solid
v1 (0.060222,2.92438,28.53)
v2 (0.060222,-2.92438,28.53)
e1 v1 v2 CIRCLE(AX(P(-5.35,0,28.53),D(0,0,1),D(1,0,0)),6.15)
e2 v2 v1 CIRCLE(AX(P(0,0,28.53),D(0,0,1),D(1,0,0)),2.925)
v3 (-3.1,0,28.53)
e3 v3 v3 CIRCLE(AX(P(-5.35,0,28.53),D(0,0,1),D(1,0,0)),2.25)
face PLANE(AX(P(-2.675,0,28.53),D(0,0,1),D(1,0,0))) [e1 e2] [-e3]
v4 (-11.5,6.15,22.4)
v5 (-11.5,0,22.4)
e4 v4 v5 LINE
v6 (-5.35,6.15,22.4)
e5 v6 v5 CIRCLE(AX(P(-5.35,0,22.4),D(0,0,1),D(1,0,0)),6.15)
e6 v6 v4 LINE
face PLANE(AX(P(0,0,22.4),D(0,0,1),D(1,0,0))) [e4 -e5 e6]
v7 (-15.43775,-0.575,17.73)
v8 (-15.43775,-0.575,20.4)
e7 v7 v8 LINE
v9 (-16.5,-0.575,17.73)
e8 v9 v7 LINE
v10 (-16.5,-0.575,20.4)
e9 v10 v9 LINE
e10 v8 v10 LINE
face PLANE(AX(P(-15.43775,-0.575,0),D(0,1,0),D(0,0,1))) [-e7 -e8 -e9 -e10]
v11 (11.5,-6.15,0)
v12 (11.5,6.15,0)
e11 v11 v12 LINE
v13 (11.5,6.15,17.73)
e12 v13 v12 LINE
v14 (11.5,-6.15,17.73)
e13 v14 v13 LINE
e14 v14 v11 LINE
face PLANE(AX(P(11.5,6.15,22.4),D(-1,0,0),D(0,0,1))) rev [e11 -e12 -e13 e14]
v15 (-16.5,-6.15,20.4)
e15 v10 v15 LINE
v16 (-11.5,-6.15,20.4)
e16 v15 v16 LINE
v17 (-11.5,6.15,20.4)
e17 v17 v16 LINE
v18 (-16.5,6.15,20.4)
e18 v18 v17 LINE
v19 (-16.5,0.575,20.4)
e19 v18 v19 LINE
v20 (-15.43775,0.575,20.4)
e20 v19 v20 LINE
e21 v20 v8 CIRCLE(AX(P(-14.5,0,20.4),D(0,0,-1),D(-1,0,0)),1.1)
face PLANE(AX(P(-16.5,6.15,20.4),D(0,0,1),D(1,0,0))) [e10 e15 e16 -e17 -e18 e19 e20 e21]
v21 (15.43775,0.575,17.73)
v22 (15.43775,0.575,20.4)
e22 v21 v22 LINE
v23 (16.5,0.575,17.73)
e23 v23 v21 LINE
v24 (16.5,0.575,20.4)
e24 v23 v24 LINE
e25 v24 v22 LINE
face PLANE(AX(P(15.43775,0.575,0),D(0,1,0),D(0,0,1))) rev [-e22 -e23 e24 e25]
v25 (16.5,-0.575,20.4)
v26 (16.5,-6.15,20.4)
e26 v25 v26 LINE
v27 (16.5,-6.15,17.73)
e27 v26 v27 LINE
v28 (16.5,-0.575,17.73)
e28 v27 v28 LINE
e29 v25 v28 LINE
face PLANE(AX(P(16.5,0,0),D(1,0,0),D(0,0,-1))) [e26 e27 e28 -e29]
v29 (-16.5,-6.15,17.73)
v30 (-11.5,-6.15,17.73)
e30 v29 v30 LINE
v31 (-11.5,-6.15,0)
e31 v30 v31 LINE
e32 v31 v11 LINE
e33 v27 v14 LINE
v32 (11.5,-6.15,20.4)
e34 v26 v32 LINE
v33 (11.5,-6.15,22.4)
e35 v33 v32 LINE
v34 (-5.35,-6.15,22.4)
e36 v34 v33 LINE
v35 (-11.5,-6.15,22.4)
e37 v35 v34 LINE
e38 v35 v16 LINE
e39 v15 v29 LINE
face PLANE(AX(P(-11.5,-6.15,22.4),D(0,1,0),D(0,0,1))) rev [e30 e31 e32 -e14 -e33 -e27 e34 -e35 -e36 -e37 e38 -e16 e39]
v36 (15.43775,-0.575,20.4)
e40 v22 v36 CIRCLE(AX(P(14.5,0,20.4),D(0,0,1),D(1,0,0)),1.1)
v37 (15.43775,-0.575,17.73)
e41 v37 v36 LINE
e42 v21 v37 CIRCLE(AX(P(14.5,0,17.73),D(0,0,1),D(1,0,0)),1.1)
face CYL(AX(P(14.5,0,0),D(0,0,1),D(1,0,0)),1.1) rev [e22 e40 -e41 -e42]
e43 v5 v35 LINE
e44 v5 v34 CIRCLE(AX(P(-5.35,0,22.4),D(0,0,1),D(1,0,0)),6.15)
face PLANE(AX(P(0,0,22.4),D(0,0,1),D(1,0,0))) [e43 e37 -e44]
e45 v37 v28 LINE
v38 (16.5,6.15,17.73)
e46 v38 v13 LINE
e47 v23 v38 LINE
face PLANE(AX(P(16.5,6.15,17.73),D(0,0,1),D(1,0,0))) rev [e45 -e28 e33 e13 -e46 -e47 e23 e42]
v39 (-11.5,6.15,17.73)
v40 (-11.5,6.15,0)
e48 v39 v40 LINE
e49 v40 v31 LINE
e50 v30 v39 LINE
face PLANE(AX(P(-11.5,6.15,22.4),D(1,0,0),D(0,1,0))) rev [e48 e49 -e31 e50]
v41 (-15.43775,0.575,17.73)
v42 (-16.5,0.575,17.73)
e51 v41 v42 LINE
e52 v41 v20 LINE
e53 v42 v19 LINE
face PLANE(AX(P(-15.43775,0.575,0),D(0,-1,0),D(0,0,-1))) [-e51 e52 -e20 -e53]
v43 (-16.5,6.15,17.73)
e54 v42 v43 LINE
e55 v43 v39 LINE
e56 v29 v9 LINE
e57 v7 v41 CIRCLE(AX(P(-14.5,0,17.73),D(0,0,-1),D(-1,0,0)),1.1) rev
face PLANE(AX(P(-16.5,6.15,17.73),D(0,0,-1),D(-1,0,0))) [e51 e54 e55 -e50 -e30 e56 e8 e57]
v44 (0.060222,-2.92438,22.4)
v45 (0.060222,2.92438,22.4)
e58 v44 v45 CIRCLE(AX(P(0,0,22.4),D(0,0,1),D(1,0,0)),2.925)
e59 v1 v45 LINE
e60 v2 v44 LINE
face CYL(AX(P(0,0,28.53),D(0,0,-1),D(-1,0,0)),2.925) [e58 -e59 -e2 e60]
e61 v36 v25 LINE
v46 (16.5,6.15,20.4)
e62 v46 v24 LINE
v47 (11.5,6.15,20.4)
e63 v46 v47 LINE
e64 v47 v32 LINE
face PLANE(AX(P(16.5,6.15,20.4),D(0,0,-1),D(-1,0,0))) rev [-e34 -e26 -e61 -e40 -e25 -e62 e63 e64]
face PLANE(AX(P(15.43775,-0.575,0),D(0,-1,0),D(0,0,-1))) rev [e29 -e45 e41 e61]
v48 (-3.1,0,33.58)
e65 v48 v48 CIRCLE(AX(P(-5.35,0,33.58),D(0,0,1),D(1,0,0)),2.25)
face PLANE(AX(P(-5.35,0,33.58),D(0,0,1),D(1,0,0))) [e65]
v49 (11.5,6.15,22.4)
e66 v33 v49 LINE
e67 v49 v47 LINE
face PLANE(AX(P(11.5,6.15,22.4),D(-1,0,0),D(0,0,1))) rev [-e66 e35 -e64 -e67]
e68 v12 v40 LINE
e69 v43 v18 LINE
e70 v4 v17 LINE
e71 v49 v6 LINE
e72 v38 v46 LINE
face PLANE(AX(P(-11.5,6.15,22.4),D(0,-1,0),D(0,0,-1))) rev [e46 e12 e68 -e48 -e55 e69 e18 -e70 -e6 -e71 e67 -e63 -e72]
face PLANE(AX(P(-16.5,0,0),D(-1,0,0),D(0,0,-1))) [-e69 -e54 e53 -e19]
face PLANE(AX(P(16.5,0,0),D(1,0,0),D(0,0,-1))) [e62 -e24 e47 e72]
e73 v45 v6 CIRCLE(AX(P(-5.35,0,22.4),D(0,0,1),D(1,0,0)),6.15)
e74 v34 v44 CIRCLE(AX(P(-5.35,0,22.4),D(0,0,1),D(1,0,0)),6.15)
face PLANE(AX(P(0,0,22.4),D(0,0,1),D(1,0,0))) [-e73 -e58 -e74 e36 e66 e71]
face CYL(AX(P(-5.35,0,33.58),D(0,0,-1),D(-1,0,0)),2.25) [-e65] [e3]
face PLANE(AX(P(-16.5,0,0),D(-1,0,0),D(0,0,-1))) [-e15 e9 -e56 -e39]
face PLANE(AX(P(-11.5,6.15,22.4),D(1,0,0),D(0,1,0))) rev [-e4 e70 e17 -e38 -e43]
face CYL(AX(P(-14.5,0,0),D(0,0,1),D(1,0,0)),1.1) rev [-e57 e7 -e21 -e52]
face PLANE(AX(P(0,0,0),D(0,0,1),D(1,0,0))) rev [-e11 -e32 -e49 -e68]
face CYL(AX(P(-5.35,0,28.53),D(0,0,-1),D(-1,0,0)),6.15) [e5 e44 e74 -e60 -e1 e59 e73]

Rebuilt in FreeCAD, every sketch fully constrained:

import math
import FreeCAD as App
import Part
import Sketcher
from FreeCAD import Vector
Q = App.Units.Quantity

doc = App.newDocument("Part")
params = doc.addObject("Spreadsheet::Sheet", "Params")
for row, (alias, value) in enumerate([
    ("sketch1_width", "23 mm"),
    ("sketch1_height", "12.3 mm"),
    ("pad1_length", "22.4 mm"),
    ("sketch2_width", "12.3 mm"),
    ("sketch2_height", "2.67 mm"),
    ("pad2_length", "5 mm"),
    ("sketch3_radius", "1.1 mm"),
    ("sketch3_height", "1.15 mm"),
    ("sketch4_radius", "6.15 mm"),
    ("pad3_length", "6.13 mm"),
    ("sketch5_diameter", "4.5 mm"),
    ("pad4_length", "5.05 mm"),
], start=1):
    params.set(f"A{row}", alias)
    params.set(f"B{row}", "=" + value)
    params.setAlias(f"B{row}", alias)

body = doc.addObject("PartDesign::Body", "Body")

sketch1 = doc.addObject("Sketcher::SketchObject", "Sketch")
body.addObject(sketch1)
sketch1.AttachmentSupport = (doc.XY_Plane, [""])
sketch1.MapMode = "FlatFace"
sketch1.addGeometry([
    Part.LineSegment(Vector(-12, 6, 0), Vector(-12, -6, 0)),
    Part.LineSegment(Vector(-12, -6, 0), Vector(12, -6, 0)),
    Part.LineSegment(Vector(12, -6, 0), Vector(12, 6, 0)),
    Part.LineSegment(Vector(12, 6, 0), Vector(-12, 6, 0)),
], False)
sketch1.addConstraint([
    Sketcher.Constraint("Coincident", 0, 2, 1, 1),
    Sketcher.Constraint("Coincident", 1, 2, 2, 1),
    Sketcher.Constraint("Coincident", 2, 2, 3, 1),
    Sketcher.Constraint("Coincident", 3, 2, 0, 1),
    Sketcher.Constraint("Vertical", 0),
    Sketcher.Constraint("Horizontal", 1),
    Sketcher.Constraint("Vertical", 2),
    Sketcher.Constraint("Horizontal", 3),
    Sketcher.Constraint("Symmetric", 0, 2, 2, 2, -1, 1),
    Sketcher.Constraint("DistanceX", 1, 1, 1, 2, Q("23 mm")),
    Sketcher.Constraint("DistanceY", 0, 2, 0, 1, Q("12.3 mm")),
])
sketch1.setExpression("Constraints[9]", "Params.sketch1_width")
sketch1.setExpression("Constraints[10]", "Params.sketch1_height")
pad1 = doc.addObject("PartDesign::Pad", "Pad")
body.addObject(pad1)
pad1.Profile = sketch1
pad1.setExpression("Length", "Params.pad1_length")

sketch2 = doc.addObject("Sketcher::SketchObject", "Sketch001")
body.addObject(sketch2)
sketch2.AttachmentSupport = (doc.YZ_Plane, [""])
sketch2.MapMode = "FlatFace"
sketch2.AttachmentOffset = App.Placement(Vector(0, 0, 11.5), App.Rotation())
sketch2.addGeometry([
    Part.LineSegment(Vector(6.2, 20.4, 0), Vector(-6.2, 20.4, 0)),
    Part.LineSegment(Vector(-6.2, 20.4, 0), Vector(-6.2, 17.7, 0)),
    Part.LineSegment(Vector(-6.2, 17.7, 0), Vector(6.2, 17.7, 0)),
    Part.LineSegment(Vector(6.2, 17.7, 0), Vector(6.2, 20.4, 0)),
], False)
sketch2.addConstraint([
    Sketcher.Constraint("Coincident", 0, 2, 1, 1),
    Sketcher.Constraint("Coincident", 1, 2, 2, 1),
    Sketcher.Constraint("Coincident", 2, 2, 3, 1),
    Sketcher.Constraint("Coincident", 3, 2, 0, 1),
    Sketcher.Constraint("Horizontal", 0),
    Sketcher.Constraint("Vertical", 1),
    Sketcher.Constraint("Horizontal", 2),
    Sketcher.Constraint("Vertical", 3),
    Sketcher.Constraint("DistanceX", 0, 2, 0, 1, Q("12.3 mm")),
    Sketcher.Constraint("DistanceY", 1, 2, 1, 1, Q("2.67 mm")),
    Sketcher.Constraint("DistanceY", -1, 1, 0, 2, Q("20.4 mm")),
    Sketcher.Constraint("DistanceX", 0, 2, -1, 1, Q("6.15 mm")),
])
sketch2.setExpression("Constraints[8]", "Params.sketch2_width")
sketch2.setExpression("Constraints[9]", "Params.sketch2_height")
pad2 = doc.addObject("PartDesign::Pad", "Pad001")
body.addObject(pad2)
pad2.Profile = sketch2
pad2.setExpression("Length", "Params.pad2_length")

sketch3 = doc.addObject("Sketcher::SketchObject", "Sketch002")
body.addObject(sketch3)
sketch3.AttachmentSupport = (doc.XY_Plane, [""])
sketch3.MapMode = "FlatFace"
sketch3.AttachmentOffset = App.Placement(Vector(0, 0, 20.4), App.Rotation())
sketch3.addGeometry([
    Part.LineSegment(Vector(16.5, 0.6, 0), Vector(15.4, 0.6, 0)),
    Part.ArcOfCircle(Part.Circle(Vector(14.5, 0, 0), Vector(0, 0, 1), 1.1), math.radians(32), math.radians(328)),
    Part.LineSegment(Vector(15.4, -0.6, 0), Vector(16.5, -0.6, 0)),
    Part.LineSegment(Vector(16.5, -0.6, 0), Vector(16.5, 0.6, 0)),
], False)
sketch3.addConstraint([
    Sketcher.Constraint("Coincident", 0, 2, 1, 1),
    Sketcher.Constraint("Coincident", 1, 2, 2, 1),
    Sketcher.Constraint("Coincident", 2, 2, 3, 1),
    Sketcher.Constraint("Coincident", 3, 2, 0, 1),
    Sketcher.Constraint("Horizontal", 0),
    Sketcher.Constraint("Horizontal", 2),
    Sketcher.Constraint("Vertical", 3),
    Sketcher.Constraint("Symmetric", 0, 2, 1, 2, -1),
    Sketcher.Constraint("Radius", 1, Q("1.1 mm")),
    Sketcher.Constraint("DistanceX", 1, 3, 2, 2, Q("2 mm")),
    Sketcher.Constraint("DistanceY", 3, 1, 3, 2, Q("1.15 mm")),
    Sketcher.Constraint("DistanceX", -1, 1, 1, 3, Q("14.5 mm")),
])
sketch3.setExpression("Constraints[8]", "Params.sketch3_radius")
sketch3.setExpression("Constraints[10]", "Params.sketch3_height")
pocket1 = doc.addObject("PartDesign::Pocket", "Pocket")
body.addObject(pocket1)
pocket1.Profile = sketch3
pocket1.Type = "ThroughAll"
doc.recompute()

mirrored = doc.addObject("PartDesign::Mirrored", "Mirrored")
body.addObject(mirrored)
mirrored.Originals = [pad2, pocket1]
mirrored.MirrorPlane = (doc.YZ_Plane, [""])
body.Tip = mirrored

sketch4 = doc.addObject("Sketcher::SketchObject", "Sketch003")
body.addObject(sketch4)
sketch4.AttachmentSupport = (doc.XY_Plane, [""])
sketch4.MapMode = "FlatFace"
sketch4.AttachmentOffset = App.Placement(Vector(0, 0, 22.4), App.Rotation())
sketch4.addGeometry([
    Part.ArcOfCircle(Part.Circle(Vector(-5.3, 0, 0), Vector(0, 0, 1), 6.2), math.radians(28), math.radians(332)),
    Part.ArcOfCircle(Part.Circle(Vector(0, 0, 0), Vector(0, 0, 1), 2.9), math.radians(-89), math.radians(89)),
], False)
sketch4.addConstraint([
    Sketcher.Constraint("Coincident", 0, 1, 1, 2),
    Sketcher.Constraint("Coincident", 1, 1, 0, 2),
    Sketcher.Constraint("Coincident", 1, 3, -1, 1),
    Sketcher.Constraint("PointOnObject", 0, 3, -1),
    Sketcher.Constraint("Radius", 0, Q("6.15 mm")),
    Sketcher.Constraint("Radius", 1, Q("2.925 mm")),
    Sketcher.Constraint("DistanceX", 0, 3, -1, 1, Q("5.35 mm")),
])
sketch4.setExpression("Constraints[4]", "Params.sketch4_radius")
pad3 = doc.addObject("PartDesign::Pad", "Pad002")
body.addObject(pad3)
pad3.Profile = sketch4
pad3.setExpression("Length", "Params.pad3_length")

sketch5 = doc.addObject("Sketcher::SketchObject", "Sketch004")
body.addObject(sketch5)
sketch5.AttachmentSupport = (doc.XY_Plane, [""])
sketch5.MapMode = "FlatFace"
sketch5.AttachmentOffset = App.Placement(Vector(0, 0, 28.53), App.Rotation())
sketch5.addGeometry(Part.Circle(Vector(-5.3, 0, 0), Vector(0, 0, 1), 2.2), False)
sketch5.addConstraint([
    Sketcher.Constraint("PointOnObject", 0, 3, -1),
    Sketcher.Constraint("Diameter", 0, Q("4.5 mm")),
    Sketcher.Constraint("DistanceX", 0, 3, -1, 1, Q("5.35 mm")),
])
sketch5.setExpression("Constraints[1]", "Params.sketch5_diameter")
pad4 = doc.addObject("PartDesign::Pad", "Pad003")
body.addObject(pad4)
pad4.Profile = sketch5
pad4.setExpression("Length", "Params.pad4_length")

doc.recompute()
